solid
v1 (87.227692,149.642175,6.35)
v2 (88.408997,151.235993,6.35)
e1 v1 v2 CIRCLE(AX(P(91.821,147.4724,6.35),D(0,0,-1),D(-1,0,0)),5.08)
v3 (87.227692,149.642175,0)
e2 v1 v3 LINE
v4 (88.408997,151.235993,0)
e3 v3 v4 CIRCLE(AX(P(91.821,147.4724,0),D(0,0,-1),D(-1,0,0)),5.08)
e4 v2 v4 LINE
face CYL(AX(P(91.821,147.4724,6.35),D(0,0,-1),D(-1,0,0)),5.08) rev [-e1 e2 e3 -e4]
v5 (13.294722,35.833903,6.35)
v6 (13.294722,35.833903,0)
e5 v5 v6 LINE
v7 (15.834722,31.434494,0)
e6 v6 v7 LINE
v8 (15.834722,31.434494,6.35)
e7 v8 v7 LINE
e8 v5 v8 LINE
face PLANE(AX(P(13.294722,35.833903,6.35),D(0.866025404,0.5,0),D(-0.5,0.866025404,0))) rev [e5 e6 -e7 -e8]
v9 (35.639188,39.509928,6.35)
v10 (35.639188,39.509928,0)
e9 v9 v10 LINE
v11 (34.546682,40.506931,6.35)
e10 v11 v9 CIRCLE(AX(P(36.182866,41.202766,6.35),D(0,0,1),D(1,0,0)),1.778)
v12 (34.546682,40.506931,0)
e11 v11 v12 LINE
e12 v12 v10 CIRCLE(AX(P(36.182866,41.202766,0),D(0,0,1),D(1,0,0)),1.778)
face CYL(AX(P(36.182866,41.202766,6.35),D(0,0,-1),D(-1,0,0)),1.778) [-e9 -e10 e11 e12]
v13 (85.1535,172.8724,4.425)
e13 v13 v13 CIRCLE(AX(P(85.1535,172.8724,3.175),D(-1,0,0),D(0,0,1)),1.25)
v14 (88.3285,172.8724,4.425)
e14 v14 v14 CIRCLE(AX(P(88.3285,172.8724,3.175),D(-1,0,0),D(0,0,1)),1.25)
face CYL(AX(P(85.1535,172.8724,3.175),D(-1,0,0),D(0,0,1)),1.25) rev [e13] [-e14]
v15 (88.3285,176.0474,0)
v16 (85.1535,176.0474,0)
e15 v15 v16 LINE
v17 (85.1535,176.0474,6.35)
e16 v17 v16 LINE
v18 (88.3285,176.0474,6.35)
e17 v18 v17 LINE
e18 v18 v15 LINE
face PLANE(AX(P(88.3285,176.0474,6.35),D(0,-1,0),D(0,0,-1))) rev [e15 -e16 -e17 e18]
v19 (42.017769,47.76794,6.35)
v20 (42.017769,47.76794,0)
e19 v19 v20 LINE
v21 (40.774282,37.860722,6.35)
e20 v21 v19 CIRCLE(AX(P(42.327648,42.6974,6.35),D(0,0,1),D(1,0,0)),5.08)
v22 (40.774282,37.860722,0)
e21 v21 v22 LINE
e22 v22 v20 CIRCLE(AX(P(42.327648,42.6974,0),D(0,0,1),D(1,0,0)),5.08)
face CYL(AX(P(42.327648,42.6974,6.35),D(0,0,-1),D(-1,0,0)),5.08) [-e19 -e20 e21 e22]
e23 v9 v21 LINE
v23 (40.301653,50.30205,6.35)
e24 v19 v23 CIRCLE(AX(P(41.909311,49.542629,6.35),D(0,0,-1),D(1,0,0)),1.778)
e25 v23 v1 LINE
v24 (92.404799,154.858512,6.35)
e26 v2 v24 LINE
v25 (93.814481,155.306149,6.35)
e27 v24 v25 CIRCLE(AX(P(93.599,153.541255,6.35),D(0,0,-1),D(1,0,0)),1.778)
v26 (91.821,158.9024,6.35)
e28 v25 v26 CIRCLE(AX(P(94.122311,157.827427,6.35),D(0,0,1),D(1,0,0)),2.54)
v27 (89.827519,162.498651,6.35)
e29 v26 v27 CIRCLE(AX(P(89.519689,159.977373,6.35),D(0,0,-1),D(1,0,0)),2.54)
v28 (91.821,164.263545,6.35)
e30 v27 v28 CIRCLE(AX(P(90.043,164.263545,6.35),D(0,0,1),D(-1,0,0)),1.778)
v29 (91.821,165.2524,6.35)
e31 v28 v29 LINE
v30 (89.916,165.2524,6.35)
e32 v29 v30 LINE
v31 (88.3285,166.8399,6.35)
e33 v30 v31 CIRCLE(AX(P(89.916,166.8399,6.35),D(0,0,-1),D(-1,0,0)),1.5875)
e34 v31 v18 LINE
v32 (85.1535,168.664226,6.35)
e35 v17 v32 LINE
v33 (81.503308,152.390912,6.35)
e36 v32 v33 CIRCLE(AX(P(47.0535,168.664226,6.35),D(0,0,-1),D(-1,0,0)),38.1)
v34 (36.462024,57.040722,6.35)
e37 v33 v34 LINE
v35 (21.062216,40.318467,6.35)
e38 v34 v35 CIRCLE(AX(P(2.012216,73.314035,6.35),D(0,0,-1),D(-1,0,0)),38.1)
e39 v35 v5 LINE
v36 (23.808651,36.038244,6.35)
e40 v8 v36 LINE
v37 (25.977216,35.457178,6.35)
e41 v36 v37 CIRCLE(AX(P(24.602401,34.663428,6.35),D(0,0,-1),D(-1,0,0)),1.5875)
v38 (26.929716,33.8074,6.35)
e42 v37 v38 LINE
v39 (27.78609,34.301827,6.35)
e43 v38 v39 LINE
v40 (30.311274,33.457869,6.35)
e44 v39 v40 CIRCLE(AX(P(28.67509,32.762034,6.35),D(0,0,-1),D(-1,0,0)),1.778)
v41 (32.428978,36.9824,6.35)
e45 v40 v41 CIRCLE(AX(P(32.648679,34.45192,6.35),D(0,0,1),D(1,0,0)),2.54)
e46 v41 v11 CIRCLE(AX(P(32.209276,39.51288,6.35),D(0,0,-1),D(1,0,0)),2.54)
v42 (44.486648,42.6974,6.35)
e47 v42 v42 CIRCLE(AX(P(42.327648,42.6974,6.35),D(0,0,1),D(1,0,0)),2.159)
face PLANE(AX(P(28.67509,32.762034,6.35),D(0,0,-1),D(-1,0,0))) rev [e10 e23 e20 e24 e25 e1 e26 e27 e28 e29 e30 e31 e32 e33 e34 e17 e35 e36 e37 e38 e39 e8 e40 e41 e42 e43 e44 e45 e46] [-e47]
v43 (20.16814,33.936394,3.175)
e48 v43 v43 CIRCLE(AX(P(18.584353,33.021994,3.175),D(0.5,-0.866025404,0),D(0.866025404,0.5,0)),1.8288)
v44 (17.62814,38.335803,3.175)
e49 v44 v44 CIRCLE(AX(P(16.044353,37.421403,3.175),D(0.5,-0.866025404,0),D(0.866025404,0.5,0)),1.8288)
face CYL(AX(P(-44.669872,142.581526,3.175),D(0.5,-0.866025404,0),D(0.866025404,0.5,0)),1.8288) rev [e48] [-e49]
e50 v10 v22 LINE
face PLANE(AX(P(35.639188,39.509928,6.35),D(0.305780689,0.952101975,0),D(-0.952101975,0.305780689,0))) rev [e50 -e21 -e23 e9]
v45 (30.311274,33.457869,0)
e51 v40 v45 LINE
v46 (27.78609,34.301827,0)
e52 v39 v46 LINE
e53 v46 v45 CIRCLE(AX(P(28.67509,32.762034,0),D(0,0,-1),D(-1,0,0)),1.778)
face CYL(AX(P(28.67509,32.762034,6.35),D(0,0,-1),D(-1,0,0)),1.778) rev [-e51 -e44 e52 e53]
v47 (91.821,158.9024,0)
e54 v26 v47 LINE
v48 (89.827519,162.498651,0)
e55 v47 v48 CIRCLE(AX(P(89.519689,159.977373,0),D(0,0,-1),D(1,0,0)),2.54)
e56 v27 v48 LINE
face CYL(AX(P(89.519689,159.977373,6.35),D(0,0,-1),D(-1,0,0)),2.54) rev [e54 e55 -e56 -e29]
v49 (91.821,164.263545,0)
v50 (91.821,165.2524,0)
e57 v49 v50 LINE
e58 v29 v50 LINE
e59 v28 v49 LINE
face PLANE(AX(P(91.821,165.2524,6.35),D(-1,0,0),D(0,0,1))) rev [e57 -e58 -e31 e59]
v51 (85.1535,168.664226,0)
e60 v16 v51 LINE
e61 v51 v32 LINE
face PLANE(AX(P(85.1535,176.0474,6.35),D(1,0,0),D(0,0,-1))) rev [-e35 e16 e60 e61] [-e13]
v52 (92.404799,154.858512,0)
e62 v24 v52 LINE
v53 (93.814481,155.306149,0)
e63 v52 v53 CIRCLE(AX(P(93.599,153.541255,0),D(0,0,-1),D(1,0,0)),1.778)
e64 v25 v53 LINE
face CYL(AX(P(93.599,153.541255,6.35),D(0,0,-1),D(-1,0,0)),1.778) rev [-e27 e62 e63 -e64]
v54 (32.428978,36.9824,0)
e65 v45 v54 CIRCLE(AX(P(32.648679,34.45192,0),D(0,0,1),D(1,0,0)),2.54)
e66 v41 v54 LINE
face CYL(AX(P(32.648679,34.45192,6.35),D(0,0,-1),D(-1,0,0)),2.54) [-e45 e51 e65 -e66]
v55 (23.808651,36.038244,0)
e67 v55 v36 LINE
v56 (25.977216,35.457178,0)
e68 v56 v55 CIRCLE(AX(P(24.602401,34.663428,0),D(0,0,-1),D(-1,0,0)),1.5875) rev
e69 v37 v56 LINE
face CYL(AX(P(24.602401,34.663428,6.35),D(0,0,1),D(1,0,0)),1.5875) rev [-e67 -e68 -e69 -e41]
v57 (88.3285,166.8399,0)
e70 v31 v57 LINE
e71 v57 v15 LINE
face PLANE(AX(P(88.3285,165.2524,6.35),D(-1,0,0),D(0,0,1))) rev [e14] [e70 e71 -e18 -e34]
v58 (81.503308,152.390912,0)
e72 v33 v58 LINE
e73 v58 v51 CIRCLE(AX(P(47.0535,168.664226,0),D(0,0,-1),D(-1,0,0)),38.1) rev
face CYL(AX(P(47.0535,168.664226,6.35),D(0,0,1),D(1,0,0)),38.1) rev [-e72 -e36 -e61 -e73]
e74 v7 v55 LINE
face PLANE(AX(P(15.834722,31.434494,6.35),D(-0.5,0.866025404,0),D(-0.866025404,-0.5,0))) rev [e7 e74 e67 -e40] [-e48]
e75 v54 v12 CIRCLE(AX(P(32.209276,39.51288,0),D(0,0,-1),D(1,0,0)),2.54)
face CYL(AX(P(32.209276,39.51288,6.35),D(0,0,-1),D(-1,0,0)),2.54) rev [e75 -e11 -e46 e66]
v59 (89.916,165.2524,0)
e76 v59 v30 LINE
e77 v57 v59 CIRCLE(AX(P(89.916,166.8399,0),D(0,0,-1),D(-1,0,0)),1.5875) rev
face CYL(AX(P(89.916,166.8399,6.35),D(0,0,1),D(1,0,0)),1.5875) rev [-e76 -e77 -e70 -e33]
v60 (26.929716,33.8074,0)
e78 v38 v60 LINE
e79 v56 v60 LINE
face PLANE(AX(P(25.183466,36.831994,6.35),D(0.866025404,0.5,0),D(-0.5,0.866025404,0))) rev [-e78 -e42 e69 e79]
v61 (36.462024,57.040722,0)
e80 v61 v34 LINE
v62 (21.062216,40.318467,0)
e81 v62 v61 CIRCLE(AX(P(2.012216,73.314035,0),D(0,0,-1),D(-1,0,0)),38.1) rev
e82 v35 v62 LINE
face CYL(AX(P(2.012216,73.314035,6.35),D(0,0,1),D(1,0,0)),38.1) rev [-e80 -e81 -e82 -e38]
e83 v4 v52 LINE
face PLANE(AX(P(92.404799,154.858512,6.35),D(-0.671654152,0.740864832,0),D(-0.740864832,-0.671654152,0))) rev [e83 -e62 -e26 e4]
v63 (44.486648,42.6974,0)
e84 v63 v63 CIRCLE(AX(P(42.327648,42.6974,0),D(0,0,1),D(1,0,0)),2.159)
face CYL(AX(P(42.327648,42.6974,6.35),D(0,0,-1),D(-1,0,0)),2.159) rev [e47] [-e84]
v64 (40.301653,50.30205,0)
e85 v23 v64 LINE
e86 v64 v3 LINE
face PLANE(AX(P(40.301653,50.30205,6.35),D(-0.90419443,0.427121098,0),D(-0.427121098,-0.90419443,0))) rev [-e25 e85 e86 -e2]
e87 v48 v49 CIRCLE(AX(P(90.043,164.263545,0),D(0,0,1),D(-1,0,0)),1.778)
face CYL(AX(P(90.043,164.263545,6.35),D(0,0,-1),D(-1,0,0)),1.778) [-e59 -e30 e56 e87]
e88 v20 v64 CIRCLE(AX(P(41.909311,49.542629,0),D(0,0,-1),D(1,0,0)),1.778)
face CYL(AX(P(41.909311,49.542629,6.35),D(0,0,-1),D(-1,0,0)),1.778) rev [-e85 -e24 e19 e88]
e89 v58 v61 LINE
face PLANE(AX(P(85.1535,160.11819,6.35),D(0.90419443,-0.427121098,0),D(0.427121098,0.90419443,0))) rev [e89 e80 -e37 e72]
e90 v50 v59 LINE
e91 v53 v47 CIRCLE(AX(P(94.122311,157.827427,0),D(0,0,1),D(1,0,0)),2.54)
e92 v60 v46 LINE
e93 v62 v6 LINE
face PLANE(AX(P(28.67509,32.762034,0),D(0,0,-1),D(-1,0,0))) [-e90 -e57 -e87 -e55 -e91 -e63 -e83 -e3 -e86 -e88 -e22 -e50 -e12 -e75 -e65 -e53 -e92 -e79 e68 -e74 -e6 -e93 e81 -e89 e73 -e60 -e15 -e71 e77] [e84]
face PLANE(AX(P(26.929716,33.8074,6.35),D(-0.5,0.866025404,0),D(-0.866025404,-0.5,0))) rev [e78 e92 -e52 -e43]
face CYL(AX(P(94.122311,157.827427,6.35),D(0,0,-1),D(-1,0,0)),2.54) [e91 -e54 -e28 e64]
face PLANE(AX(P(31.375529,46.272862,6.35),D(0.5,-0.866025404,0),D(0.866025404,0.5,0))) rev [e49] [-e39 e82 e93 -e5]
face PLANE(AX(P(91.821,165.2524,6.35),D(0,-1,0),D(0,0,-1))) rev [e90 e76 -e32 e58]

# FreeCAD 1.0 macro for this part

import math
import FreeCAD as App
import Part
import Sketcher
Q = App.Units.Quantity


def edges_at(feature, points):
    """Names of the edges that pass closest to the given points."""
    edges = feature.Shape.Edges
    near = lambda p: min(range(len(edges)), key=lambda i: edges[i].distToShape(Part.Vertex(*p))[0])
    return sorted({f"Edge{near(p) + 1}" for p in points})

doc = App.newDocument("Part")
body = doc.addObject("PartDesign::Body", "Body")

# Sketch on XY plane
sketch1 = body.newObject("Sketcher::SketchObject", "Sketch")
sketch1.AttachmentSupport = (doc.getObject("XY_Plane"), [""])
sketch1.MapMode = "FlatFace"
sketch1.addGeometry(Part.LineSegment(App.Vector(15.8, 31.4, 0), App.Vector(25.2, 36.8, 0)), False)
sketch1.addGeometry(Part.LineSegment(App.Vector(25.2, 36.8, 0), App.Vector(26.9, 33.8, 0)), False)
sketch1.addGeometry(Part.LineSegment(App.Vector(26.9, 33.8, 0), App.Vector(27.8, 34.3, 0)), False)
sketch1.addGeometry(Part.ArcOfCircle(Part.Circle(App.Vector(28.7, 32.8, 0), App.Vector(0, 0, 1), 1.8), math.radians(23), math.radians(120)), False)
sketch1.addGeometry(Part.ArcOfCircle(Part.Circle(App.Vector(32.6, 34.5, 0), App.Vector(0, 0, 1), 2.5), math.radians(-157), math.radians(95)), False)
sketch1.addGeometry(Part.ArcOfCircle(Part.Circle(App.Vector(32.2, 39.5, 0), App.Vector(0, 0, 1), 2.5), math.radians(23), math.radians(275)), False)
sketch1.addGeometry(Part.ArcOfCircle(Part.Circle(App.Vector(36.2, 41.2, 0), App.Vector(0, 0, 1), 1.8), math.radians(-157), math.radians(-108)), False)
sketch1.addGeometry(Part.LineSegment(App.Vector(35.6, 39.5, 0), App.Vector(40.8, 37.9, 0)), False)
sketch1.addGeometry(Part.ArcOfCircle(Part.Circle(App.Vector(42.3, 42.7, 0), App.Vector(0, 0, 1), 5.1), math.radians(-108), math.radians(93)), False)
sketch1.addGeometry(Part.ArcOfCircle(Part.Circle(App.Vector(41.9, 49.5, 0), App.Vector(0, 0, 1), 1.8), math.radians(155), math.radians(273)), False)
sketch1.addGeometry(Part.LineSegment(App.Vector(40.3, 50.3, 0), App.Vector(87.2, 149.6, 0)), False)
sketch1.addGeometry(Part.ArcOfCircle(Part.Circle(App.Vector(91.8, 147.5, 0), App.Vector(0, 0, 1), 5.1), math.radians(132), math.radians(155)), False)
sketch1.addGeometry(Part.LineSegment(App.Vector(88.4, 151.2, 0), App.Vector(92.4, 154.9, 0)), False)
sketch1.addGeometry(Part.ArcOfCircle(Part.Circle(App.Vector(93.6, 153.5, 0), App.Vector(0, 0, 1), 1.8), math.radians(83), math.radians(132)), False)
sketch1.addGeometry(Part.ArcOfCircle(Part.Circle(App.Vector(94.1, 157.8, 0), App.Vector(0, 0, 1), 2.5), math.radians(-97), math.radians(155)), False)
sketch1.addGeometry(Part.ArcOfCircle(Part.Circle(App.Vector(89.5, 160, 0), App.Vector(0, 0, 1), 2.5), math.radians(83), math.radians(335)), False)
sketch1.addGeometry(Part.ArcOfCircle(Part.Circle(App.Vector(90, 164.3, 0), App.Vector(0, 0, 1), 1.8), math.radians(-97), math.radians(0)), False)
sketch1.addGeometry(Part.LineSegment(App.Vector(91.8, 164.3, 0), App.Vector(91.8, 165.3, 0)), False)
sketch1.addGeometry(Part.LineSegment(App.Vector(91.8, 165.3, 0), App.Vector(88.3, 165.3, 0)), False)
sketch1.addGeometry(Part.LineSegment(App.Vector(88.3, 165.3, 0), App.Vector(88.3, 176, 0)), False)
sketch1.addGeometry(Part.LineSegment(App.Vector(88.3, 176, 0), App.Vector(85.2, 176, 0)), False)
sketch1.addGeometry(Part.LineSegment(App.Vector(85.2, 176, 0), App.Vector(85.2, 160.1, 0)), False)
sketch1.addGeometry(Part.LineSegment(App.Vector(85.2, 160.1, 0), App.Vector(31.4, 46.3, 0)), False)
sketch1.addGeometry(Part.LineSegment(App.Vector(31.4, 46.3, 0), App.Vector(13.3, 35.8, 0)), False)
sketch1.addGeometry(Part.LineSegment(App.Vector(13.3, 35.8, 0), App.Vector(15.8, 31.4, 0)), False)
sketch1.addGeometry(Part.Circle(App.Vector(42.3, 42.7, 0), App.Vector(0, 0, 1), 2.2), False)
sketch1.addConstraint(Sketcher.Constraint("Coincident", 0, 2, 1, 1))
sketch1.addConstraint(Sketcher.Constraint("Coincident", 1, 2, 2, 1))
sketch1.addConstraint(Sketcher.Constraint("Tangent", 2, 2, 3, 2))
sketch1.addConstraint(Sketcher.Constraint("Tangent", 3, 1, 4, 1))
sketch1.addConstraint(Sketcher.Constraint("Tangent", 4, 2, 5, 2))
sketch1.addConstraint(Sketcher.Constraint("Tangent", 5, 1, 6, 1))
sketch1.addConstraint(Sketcher.Constraint("Tangent", 6, 2, 7, 1))
sketch1.addConstraint(Sketcher.Constraint("Tangent", 7, 2, 8, 1))
sketch1.addConstraint(Sketcher.Constraint("Tangent", 8, 2, 9, 2))
sketch1.addConstraint(Sketcher.Constraint("Tangent", 9, 1, 10, 1))
sketch1.addConstraint(Sketcher.Constraint("Tangent", 10, 2, 11, 2))
sketch1.addConstraint(Sketcher.Constraint("Tangent", 11, 1, 12, 1))
sketch1.addConstraint(Sketcher.Constraint("Tangent", 12, 2, 13, 2))
sketch1.addConstraint(Sketcher.Constraint("Tangent", 13, 1, 14, 1))
sketch1.addConstraint(Sketcher.Constraint("Tangent", 14, 2, 15, 2))
sketch1.addConstraint(Sketcher.Constraint("Tangent", 15, 1, 16, 1))
sketch1.addConstraint(Sketcher.Constraint("Tangent", 16, 2, 17, 1))
sketch1.addConstraint(Sketcher.Constraint("Coincident", 17, 2, 18, 1))
sketch1.addConstraint(Sketcher.Constraint("Coincident", 18, 2, 19, 1))
sketch1.addConstraint(Sketcher.Constraint("Coincident", 19, 2, 20, 1))
sketch1.addConstraint(Sketcher.Constraint("Coincident", 20, 2, 21, 1))
sketch1.addConstraint(Sketcher.Constraint("Coincident", 21, 2, 22, 1))
sketch1.addConstraint(Sketcher.Constraint("Coincident", 22, 2, 23, 1))
sketch1.addConstraint(Sketcher.Constraint("Coincident", 23, 2, 24, 1))
sketch1.addConstraint(Sketcher.Constraint("Coincident", 24, 2, 0, 1))
sketch1.addConstraint(Sketcher.Constraint("Vertical", 17))
sketch1.addConstraint(Sketcher.Constraint("Horizontal", 18))
sketch1.addConstraint(Sketcher.Constraint("Vertical", 19))
sketch1.addConstraint(Sketcher.Constraint("Horizontal", 20))
sketch1.addConstraint(Sketcher.Constraint("Vertical", 21))
sketch1.addConstraint(Sketcher.Constraint("Coincident", 25, 3, 8, 3))
sketch1.addConstraint(Sketcher.Constraint("Equal", 4, 5))
sketch1.addConstraint(Sketcher.Constraint("Equal", 3, 6))
sketch1.addConstraint(Sketcher.Constraint("Equal", 6, 9))
sketch1.addConstraint(Sketcher.Constraint("Equal", 8, 11))
sketch1.addConstraint(Sketcher.Constraint("Equal", 9, 13))
sketch1.addConstraint(Sketcher.Constraint("Equal", 5, 14))
sketch1.addConstraint(Sketcher.Constraint("Equal", 14, 15))
sketch1.addConstraint(Sketcher.Constraint("Equal", 13, 16))
sketch1.addConstraint(Sketcher.Constraint("Perpendicular", 0, 1))
sketch1.addConstraint(Sketcher.Constraint("Perpendicular", 1, 2))
sketch1.addConstraint(Sketcher.Constraint("Parallel", 10, 22))
sketch1.addConstraint(Sketcher.Constraint("Parallel", 2, 23))
sketch1.addConstraint(Sketcher.Constraint("Perpendicular", 23, 24))
sketch1.addConstraint(Sketcher.Constraint("Vertical", 11, 3, 14, 2))
sketch1.addConstraint(Sketcher.Constraint("Vertical", 14, 2, 16, 2))
sketch1.addConstraint(Sketcher.Constraint("Equal", 7, 12))
sketch1.addConstraint(Sketcher.Constraint("Radius", 4, Q("0.1 in")))
sketch1.addConstraint(Sketcher.Constraint("Radius", 8, Q("0.2 in")))
sketch1.addConstraint(Sketcher.Constraint("Diameter", 25, Q("0.17 in")))
sketch1.addConstraint(Sketcher.Constraint("Radius", 3, Q("0.07 in")))
sketch1.addConstraint(Sketcher.Constraint("Angle", 0, Q("30 deg")))
sketch1.addConstraint(Sketcher.Constraint("Distance", 24, Q("0.2 in")))
sketch1.addConstraint(Sketcher.Constraint("DistanceX", 20, 2, 20, 1, Q("0.125 in")))
sketch1.addConstraint(Sketcher.Constraint("DistanceY", 19, 1, 19, 2, Q("0.425 in")))
sketch1.addConstraint(Sketcher.Constraint("DistanceX", 11, 3, 13, 3, Q("0.07 in")))
sketch1.addConstraint(Sketcher.Constraint("DistanceY", 14, 2, 17, 2, Q("0.25 in")))
sketch1.addConstraint(Sketcher.Constraint("Distance", 0, Q("0.425 in")))
sketch1.addConstraint(Sketcher.Constraint("DistanceX", 18, 2, 18, 1, Q("0.1375 in")))
sketch1.addConstraint(Sketcher.Constraint("DistanceY", -1, 1, 8, 3, Q("1.681 in")))
sketch1.addConstraint(Sketcher.Constraint("DistanceX", -1, 1, 11, 3, Q("3.615 in")))
sketch1.addConstraint(Sketcher.Constraint("DistanceY", -1, 1, 11, 3, Q("5.806 in")))
sketch1.addConstraint(Sketcher.Constraint("DistanceY", -1, 1, 1, 2, Q("1.331 in")))
sketch1.addConstraint(Sketcher.Constraint("DistanceY", -1, 1, 4, 2, Q("1.456 in")))
sketch1.addConstraint(Sketcher.Constraint("DistanceY", -1, 1, 14, 2, Q("6.256 in")))
sketch1.addConstraint(Sketcher.Constraint("Distance", 1, Q("0.1375 in")))
sketch1.addConstraint(Sketcher.Constraint("DistanceX", 8, 2, 8, 3, Q("0.0122 in")))
sketch1.addConstraint(Sketcher.Constraint("DistanceY", 21, 2, 21, 1, Q("15.92921 mm")))
sketch1.addConstraint(Sketcher.Constraint("DistanceX", -1, 1, 12, 2, Q("92.404799 mm")))
sketch1.addConstraint(Sketcher.Constraint("DistanceX", 9, 3, 14, 3, Q("52.213 mm")))
sketch1.addConstraint(Sketcher.Constraint("DistanceX", 0, 2, 6, 3, Q("10.999399 mm")))
sketch1.addConstraint(Sketcher.Constraint("DistanceX", 5, 3, 4, 2, Q("0.219701 mm")))
sketch1.addConstraint(Sketcher.Constraint("DistanceX", 5, 1, 7, 2, Q("6.2276 mm")))
pad1 = body.newObject("PartDesign::Pad", "Pad")
pad1.Profile = sketch1
pad1.Length = Q("0.25 in")

# Sketch on an angled plane
sketch2 = body.newObject("Sketcher::SketchObject", "Sketch001")
sketch2.Placement = App.Placement(App.Vector(-9.652854, 16.719234, 0), App.Rotation(App.Vector(-0.866025404, -0.5, 0), App.Vector(0, 0, -1), App.Vector(0.5, -0.866025404, 0), "ZXY"))
sketch2.addGeometry(Part.Circle(App.Vector(-32.6, -3.2, 0), App.Vector(0, 0, 1), 1.8), False)
sketch2.addConstraint(Sketcher.Constraint("Diameter", 0, Q("0.144 in")))
sketch2.addConstraint(Sketcher.Constraint("DistanceY", 0, 3, -1, 1, Q("0.125 in")))
sketch2.addConstraint(Sketcher.Constraint("DistanceX", 0, 3, -1, 1, Q("32.605519 mm")))
pocket1 = body.newObject("PartDesign::Pocket", "Pocket")
pocket1.Profile = sketch2
pocket1.Type = "ThroughAll"

# Sketch on YZ plane
sketch3 = body.newObject("Sketcher::SketchObject", "Sketch002")
sketch3.AttachmentSupport = (doc.getObject("YZ_Plane"), [""])
sketch3.MapMode = "FlatFace"
sketch3.AttachmentOffset = App.Placement(App.Vector(0, 0, 3.4775 * 25.4), App.Rotation())
sketch3.addGeometry(Part.Circle(App.Vector(172.9, 3.2, 0), App.Vector(0, 0, 1), 0.6), False)
sketch3.addConstraint(Sketcher.Constraint("Diameter", 0, Q("0.05 in")))
sketch3.addConstraint(Sketcher.Constraint("DistanceX", -1, 1, 0, 3, Q("6.806 in")))
sketch3.addConstraint(Sketcher.Constraint("DistanceY", -1, 1, 0, 3, Q("0.125 in")))
pocket2 = body.newObject("PartDesign::Pocket", "Pocket001")
pocket2.Profile = sketch3
pocket2.Type = "ThroughAll"
doc.recompute()

fillet = body.newObject("PartDesign::Fillet", "Fillet")
fillet.Base = (pocket2, edges_at(pocket2, [(88.329, 165.252, 3.175), (25.183, 36.832, 3.175)]))
fillet.Radius = Q("0.0625 in")
doc.recompute()

fillet2 = body.newObject("PartDesign::Fillet", "Fillet001")
fillet2.Base = (fillet, edges_at(fillet, [(31.376, 46.273, 3.175), (85.153, 160.118, 3.175)]))
fillet2.Radius = Q("1.5 in")

# Sketch on YZ plane
sketch4 = body.newObject("Sketcher::SketchObject", "Sketch003")
sketch4.AttachmentSupport = (doc.getObject("YZ_Plane"), [""])
sketch4.MapMode = "FlatFace"
sketch4.AttachmentOffset = App.Placement(App.Vector(0, 0, 3.3525 * 25.4), App.Rotation())
sketch4.addGeometry(Part.Circle(App.Vector(172.9, 3.2, 0), App.Vector(0, 0, 1), 1.2), False)
sketch4.addConstraint(Sketcher.Constraint("Diameter", 0, Q("2.5 mm")))
sketch4.addConstraint(Sketcher.Constraint("DistanceX", -1, 1, 0, 3, Q("6.806 in")))
sketch4.addConstraint(Sketcher.Constraint("DistanceY", -1, 1, 0, 3, Q("0.125 in")))
doc.recompute()
hole = body.newObject("PartDesign::Hole", "Hole")
hole.Profile = sketch4
hole.ThreadType = "None"
hole.Diameter = 2.5
hole.DepthType = "Dimension"
hole.Depth = Q("0.2953 in")
hole.DrillPoint = "Angled"
hole.DrillPointAngle = 118
hole.Reversed = True

doc.recompute()
